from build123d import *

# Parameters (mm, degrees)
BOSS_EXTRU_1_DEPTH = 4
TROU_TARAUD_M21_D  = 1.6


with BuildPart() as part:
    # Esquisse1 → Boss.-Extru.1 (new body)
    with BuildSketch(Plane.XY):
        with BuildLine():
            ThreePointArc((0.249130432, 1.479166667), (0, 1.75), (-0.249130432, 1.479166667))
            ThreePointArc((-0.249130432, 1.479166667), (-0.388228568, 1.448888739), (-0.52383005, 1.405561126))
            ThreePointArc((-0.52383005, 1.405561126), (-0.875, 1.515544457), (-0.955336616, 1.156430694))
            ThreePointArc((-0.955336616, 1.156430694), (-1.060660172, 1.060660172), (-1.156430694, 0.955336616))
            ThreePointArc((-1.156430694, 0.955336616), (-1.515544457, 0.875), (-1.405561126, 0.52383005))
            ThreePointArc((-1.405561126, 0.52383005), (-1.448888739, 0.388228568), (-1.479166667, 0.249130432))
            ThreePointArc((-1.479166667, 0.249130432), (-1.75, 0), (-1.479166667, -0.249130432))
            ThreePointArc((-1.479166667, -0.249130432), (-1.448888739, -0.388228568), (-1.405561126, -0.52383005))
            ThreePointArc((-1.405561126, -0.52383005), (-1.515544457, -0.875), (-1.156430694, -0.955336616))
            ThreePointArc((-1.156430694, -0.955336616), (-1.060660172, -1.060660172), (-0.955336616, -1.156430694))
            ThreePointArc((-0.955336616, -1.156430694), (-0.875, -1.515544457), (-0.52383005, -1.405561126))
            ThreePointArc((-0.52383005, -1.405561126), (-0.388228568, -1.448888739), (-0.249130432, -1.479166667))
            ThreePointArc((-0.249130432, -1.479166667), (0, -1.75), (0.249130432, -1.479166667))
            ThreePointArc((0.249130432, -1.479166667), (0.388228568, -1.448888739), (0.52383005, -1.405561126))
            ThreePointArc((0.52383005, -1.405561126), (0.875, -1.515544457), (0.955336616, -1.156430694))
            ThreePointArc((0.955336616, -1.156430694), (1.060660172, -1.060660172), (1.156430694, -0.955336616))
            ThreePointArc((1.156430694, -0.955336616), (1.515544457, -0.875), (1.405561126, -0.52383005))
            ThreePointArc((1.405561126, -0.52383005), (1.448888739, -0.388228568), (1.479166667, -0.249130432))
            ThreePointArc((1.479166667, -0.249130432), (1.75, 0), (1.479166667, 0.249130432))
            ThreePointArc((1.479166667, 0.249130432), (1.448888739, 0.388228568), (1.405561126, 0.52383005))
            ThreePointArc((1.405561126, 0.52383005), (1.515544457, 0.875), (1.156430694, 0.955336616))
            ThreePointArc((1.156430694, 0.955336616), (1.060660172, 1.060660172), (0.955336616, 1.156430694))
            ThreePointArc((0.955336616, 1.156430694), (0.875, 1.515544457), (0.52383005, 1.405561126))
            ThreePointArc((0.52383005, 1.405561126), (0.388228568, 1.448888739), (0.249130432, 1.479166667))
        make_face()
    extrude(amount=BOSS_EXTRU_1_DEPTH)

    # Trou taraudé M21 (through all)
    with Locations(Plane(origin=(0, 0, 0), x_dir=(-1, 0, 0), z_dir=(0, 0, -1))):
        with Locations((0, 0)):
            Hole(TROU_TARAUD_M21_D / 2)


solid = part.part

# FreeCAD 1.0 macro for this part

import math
import FreeCAD as App
import Part
import Sketcher
from FreeCAD import Vector

doc = App.newDocument("Part")
body = doc.addObject("PartDesign::Body", "Body")

# Sketch on XY plane
sketch1 = doc.addObject("Sketcher::SketchObject", "Sketch")
body.addObject(sketch1)
sketch1.AttachmentSupport = (doc.XY_Plane, [""])
sketch1.MapMode = "FlatFace"
sketch1.addGeometry([
    Part.ArcOfCircle(Part.Circle(Vector(0, 1.5, 0), Vector(0, 0, 1), 0.25), math.radians(-4.780192), math.radians(184.780192)),  # 0
    Part.ArcOfCircle(Part.Circle(Vector(0, 0, 0), Vector(0, 0, 1), 1.5), math.radians(99.560384), math.radians(110.439616)),  # 1
    Part.ArcOfCircle(Part.Circle(Vector(-0.75, 1.299038, 0), Vector(0, 0, 1), 0.25), math.radians(25.219808), math.radians(214.780192)),  # 2
    Part.ArcOfCircle(Part.Circle(Vector(0, 0, 0), Vector(0, 0, 1), 1.5), math.radians(129.560383), math.radians(140.439617)),  # 3
    Part.ArcOfCircle(Part.Circle(Vector(-1.299038, 0.75, 0), Vector(0, 0, 1), 0.25), math.radians(55.219808), math.radians(244.780192)),  # 4
    Part.ArcOfCircle(Part.Circle(Vector(0, 0, 0), Vector(0, 0, 1), 1.5), math.radians(159.560384), math.radians(170.439616)),  # 5
    Part.ArcOfCircle(Part.Circle(Vector(-1.5, 0, 0), Vector(0, 0, 1), 0.25), math.radians(85.219808), math.radians(274.780192)),  # 6
    Part.ArcOfCircle(Part.Circle(Vector(0, 0, 0), Vector(0, 0, 1), 1.5), math.radians(-170.439616), math.radians(-159.560384)),  # 7
    Part.ArcOfCircle(Part.Circle(Vector(-1.299038, -0.75, 0), Vector(0, 0, 1), 0.25), math.radians(115.219808), math.radians(304.780192)),  # 8
    Part.ArcOfCircle(Part.Circle(Vector(0, 0, 0), Vector(0, 0, 1), 1.5), math.radians(-140.439617), math.radians(-129.560383)),  # 9
    Part.ArcOfCircle(Part.Circle(Vector(-0.75, -1.299038, 0), Vector(0, 0, 1), 0.25), math.radians(145.219808), math.radians(334.780192)),  # 10
    Part.ArcOfCircle(Part.Circle(Vector(0, 0, 0), Vector(0, 0, 1), 1.5), math.radians(-110.439616), math.radians(-99.560384)),  # 11
    Part.ArcOfCircle(Part.Circle(Vector(0, -1.5, 0), Vector(0, 0, 1), 0.25), math.radians(175.219808), math.radians(364.780192)),  # 12
    Part.ArcOfCircle(Part.Circle(Vector(0, 0, 0), Vector(0, 0, 1), 1.5), math.radians(-80.439616), math.radians(-69.560384)),  # 13
    Part.ArcOfCircle(Part.Circle(Vector(0.75, -1.299038, 0), Vector(0, 0, 1), 0.25), math.radians(-154.780192), math.radians(34.780192)),  # 14
    Part.ArcOfCircle(Part.Circle(Vector(0, 0, 0), Vector(0, 0, 1), 1.5), math.radians(-50.439617), math.radians(-39.560383)),  # 15
    Part.ArcOfCircle(Part.Circle(Vector(1.299038, -0.75, 0), Vector(0, 0, 1), 0.25), math.radians(-124.780192), math.radians(64.780192)),  # 16
    Part.ArcOfCircle(Part.Circle(Vector(0, 0, 0), Vector(0, 0, 1), 1.5), math.radians(-20.439616), math.radians(-9.560384)),  # 17
    Part.ArcOfCircle(Part.Circle(Vector(1.5, 0, 0), Vector(0, 0, 1), 0.25), math.radians(-94.780192), math.radians(94.780192)),  # 18
    Part.ArcOfCircle(Part.Circle(Vector(0, 0, 0), Vector(0, 0, 1), 1.5), math.radians(9.560384), math.radians(20.439616)),  # 19
    Part.ArcOfCircle(Part.Circle(Vector(1.299038, 0.75, 0), Vector(0, 0, 1), 0.25), math.radians(-64.780192), math.radians(124.780192)),  # 20
    Part.ArcOfCircle(Part.Circle(Vector(0, 0, 0), Vector(0, 0, 1), 1.5), math.radians(39.560383), math.radians(50.439617)),  # 21
    Part.ArcOfCircle(Part.Circle(Vector(0.75, 1.299038, 0), Vector(0, 0, 1), 0.25), math.radians(-34.780192), math.radians(154.780192)),  # 22
    Part.ArcOfCircle(Part.Circle(Vector(0, 0, 0), Vector(0, 0, 1), 1.5), math.radians(69.560384), math.radians(80.439616)),  # 23
], False)
sketch1.addConstraint([
    Sketcher.Constraint("Coincident", 0, 2, 1, 1),
    Sketcher.Constraint("Coincident", 1, 2, 2, 1),
    Sketcher.Constraint("Coincident", 2, 2, 3, 1),
    Sketcher.Constraint("Coincident", 3, 2, 4, 1),
    Sketcher.Constraint("Coincident", 4, 2, 5, 1),
    Sketcher.Constraint("Coincident", 5, 2, 6, 1),
    Sketcher.Constraint("Coincident", 6, 2, 7, 1),
    Sketcher.Constraint("Coincident", 7, 2, 8, 1),
    Sketcher.Constraint("Coincident", 8, 2, 9, 1),
    Sketcher.Constraint("Coincident", 9, 2, 10, 1),
    Sketcher.Constraint("Coincident", 10, 2, 11, 1),
    Sketcher.Constraint("Coincident", 11, 2, 12, 1),
    Sketcher.Constraint("Coincident", 12, 2, 13, 1),
    Sketcher.Constraint("Coincident", 13, 2, 14, 1),
    Sketcher.Constraint("Coincident", 14, 2, 15, 1),
    Sketcher.Constraint("Coincident", 15, 2, 16, 1),
    Sketcher.Constraint("Coincident", 16, 2, 17, 1),
    Sketcher.Constraint("Coincident", 17, 2, 18, 1),
    Sketcher.Constraint("Coincident", 18, 2, 19, 1),
    Sketcher.Constraint("Coincident", 19, 2, 20, 1),
    Sketcher.Constraint("Coincident", 20, 2, 21, 1),
    Sketcher.Constraint("Coincident", 21, 2, 22, 1),
    Sketcher.Constraint("Coincident", 22, 2, 23, 1),
    Sketcher.Constraint("Coincident", 23, 2, 0, 1),
    Sketcher.Constraint("Coincident", 1, 3, -1, 1),
    Sketcher.Constraint("Coincident", 3, 3, -1, 1),
    Sketcher.Constraint("Coincident", 5, 3, -1, 1),
    Sketcher.Constraint("Coincident", 7, 3, -1, 1),
    Sketcher.Constraint("Coincident", 9, 3, -1, 1),
    Sketcher.Constraint("Coincident", 11, 3, -1, 1),
    Sketcher.Constraint("Coincident", 13, 3, -1, 1),
    Sketcher.Constraint("Coincident", 15, 3, -1, 1),
    Sketcher.Constraint("Coincident", 17, 3, -1, 1),
    Sketcher.Constraint("Coincident", 19, 3, -1, 1),
    Sketcher.Constraint("Coincident", 21, 3, -1, 1),
    Sketcher.Constraint("Coincident", 23, 3, -1, 1),
    Sketcher.Constraint("Equal", 0, 2),
    Sketcher.Constraint("Equal", 1, 3),
    Sketcher.Constraint("Equal", 2, 4),
    Sketcher.Constraint("Equal", 3, 5),
    Sketcher.Constraint("Equal", 4, 6),
    Sketcher.Constraint("Equal", 5, 7),
    Sketcher.Constraint("Equal", 6, 8),
    Sketcher.Constraint("Equal", 7, 9),
    Sketcher.Constraint("Equal", 8, 10),
    Sketcher.Constraint("Equal", 9, 11),
    Sketcher.Constraint("Equal", 10, 12),
    Sketcher.Constraint("Equal", 11, 13),
    Sketcher.Constraint("Equal", 12, 14),
    Sketcher.Constraint("Equal", 13, 15),
    Sketcher.Constraint("Equal", 14, 16),
    Sketcher.Constraint("Equal", 15, 17),
    Sketcher.Constraint("Equal", 16, 18),
    Sketcher.Constraint("Equal", 17, 19),
    Sketcher.Constraint("Equal", 18, 20),
    Sketcher.Constraint("Equal", 19, 21),
    Sketcher.Constraint("Equal", 20, 22),
    Sketcher.Constraint("Equal", 21, 23),
    Sketcher.Constraint("Symmetric", 0, 3, 12, 3, -1, 1),
    Sketcher.Constraint("Symmetric", 2, 3, 14, 3, -1, 1),
    Sketcher.Constraint("Symmetric", 4, 3, 16, 3, -1, 1),
    Sketcher.Constraint("Symmetric", 6, 3, 18, 3, -1, 1),
    Sketcher.Constraint("Symmetric", 8, 3, 20, 3, -1, 1),
    Sketcher.Constraint("Symmetric", 10, 3, 22, 3, -1, 1),
    Sketcher.Constraint("Symmetric", 10, 3, 14, 3, -2),
    Sketcher.Constraint("Symmetric", 8, 3, 16, 3, -2),
    Sketcher.Constraint("PointOnObject", 0, 3, -2),
    Sketcher.Constraint("PointOnObject", 6, 3, -1),
    Sketcher.Constraint("Radius", 1, 1.5),
    Sketcher.Constraint("Radius", 0, 0.25),
    Sketcher.Constraint("DistanceY", -1, 1, 0, 3, 1.5),
    Sketcher.Constraint("DistanceX", 6, 3, -1, 1, 1.5),
    Sketcher.Constraint("DistanceY", 8, 3, 4, 3, 1.5),
    Sketcher.Constraint("DistanceX", 2, 3, -1, 1, 0.75),
    Sketcher.Constraint("DistanceX", 1, 2, 0, 2, 0.2747),
    Sketcher.Constraint("DistanceX", 4, 3, 2, 2, 0.343701),
])
pad1 = doc.addObject("PartDesign::Pad", "Pad")
body.addObject(pad1)
pad1.Profile = sketch1
pad1.Length = 4

# Sketch on XY plane
sketch2 = doc.addObject("Sketcher::SketchObject", "Sketch001")
body.addObject(sketch2)
sketch2.AttachmentSupport = (doc.XY_Plane, [""])
sketch2.MapMode = "FlatFace"
sketch2.addGeometry(Part.Circle(Vector(0, 0, 0), Vector(0, 0, 1), 0.8), False)
sketch2.addConstraint([
    Sketcher.Constraint("Coincident", 0, 3, -1, 1),
    Sketcher.Constraint("Diameter", 0, 1.6),
])
doc.recompute()
hole = doc.addObject("PartDesign::Hole", "Hole")
body.addObject(hole)
hole.Profile = sketch2
hole.ThreadType = "None"
hole.Diameter = 1.6
hole.DepthType = "ThroughAll"
hole.Reversed = True

doc.recompute()
